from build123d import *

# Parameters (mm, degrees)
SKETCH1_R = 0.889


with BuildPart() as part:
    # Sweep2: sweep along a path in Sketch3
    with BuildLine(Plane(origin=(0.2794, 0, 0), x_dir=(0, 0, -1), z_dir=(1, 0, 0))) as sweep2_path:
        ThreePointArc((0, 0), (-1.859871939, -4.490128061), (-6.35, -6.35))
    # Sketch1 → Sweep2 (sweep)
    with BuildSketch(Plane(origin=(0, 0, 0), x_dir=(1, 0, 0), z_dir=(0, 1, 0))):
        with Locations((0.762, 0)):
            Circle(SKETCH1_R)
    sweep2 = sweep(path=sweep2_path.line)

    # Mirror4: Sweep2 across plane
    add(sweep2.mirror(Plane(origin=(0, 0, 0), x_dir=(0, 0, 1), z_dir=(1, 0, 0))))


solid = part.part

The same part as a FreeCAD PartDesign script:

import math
import FreeCAD as App
import Part
import Sketcher

V = App.Vector
Q = App.Units.Quantity

doc = App.newDocument("Part")
body = doc.addObject("PartDesign::Body", "Body")

sketch1 = body.newObject("Sketcher::SketchObject", "Sketch")
sketch1.AttachmentSupport = (doc.getObject("XZ_Plane"), [""])
sketch1.MapMode = "FlatFace"
sketch1.addGeometry(Part.Circle(V(0.8, 0, 0), V(0, 0, 1), 0.9), False)
sketch1.addConstraint([
    Sketcher.Constraint("PointOnObject", 0, 3, -1),
    Sketcher.Constraint("Diameter", 0, Q("0.07 in")),
    Sketcher.Constraint("DistanceX", -1, 1, 0, 3, Q("0.03 in")),
])

sketch2 = body.newObject("Sketcher::SketchObject", "Sketch001")
sketch2.AttachmentSupport = (doc.getObject("YZ_Plane"), [""])
sketch2.MapMode = "FlatFace"
sketch2.AttachmentOffset = App.Placement(V(0, 0, 0.011 * 25.4), App.Rotation())
sketch2.addGeometry(Part.ArcOfCircle(Part.Circle(V(0, 6, 0), V(0, 0, 1), 6), math.radians(180), math.radians(270)), False)
sketch2.addConstraint([
    Sketcher.Constraint("Coincident", 0, 2, -1, 1),
    Sketcher.Constraint("PointOnObject", 0, 3, -2),
    Sketcher.Constraint("Radius", 0, Q("0.25 in")),
    Sketcher.Constraint("DistanceY", -1, 1, 0, 1, Q("0.25 in")),
])
doc.recompute()

additivepipe = body.newObject("PartDesign::AdditivePipe", "AdditivePipe")
additivepipe.Profile = sketch1
additivepipe.Spine = (sketch2, ["Edge1"])
doc.recompute()

mirrored = body.newObject("PartDesign::Mirrored", "Mirrored")
mirrored.Originals = [additivepipe]
mirrored.MirrorPlane = (doc.getObject("YZ_Plane"), [""])
body.Tip = mirrored

doc.recompute()
